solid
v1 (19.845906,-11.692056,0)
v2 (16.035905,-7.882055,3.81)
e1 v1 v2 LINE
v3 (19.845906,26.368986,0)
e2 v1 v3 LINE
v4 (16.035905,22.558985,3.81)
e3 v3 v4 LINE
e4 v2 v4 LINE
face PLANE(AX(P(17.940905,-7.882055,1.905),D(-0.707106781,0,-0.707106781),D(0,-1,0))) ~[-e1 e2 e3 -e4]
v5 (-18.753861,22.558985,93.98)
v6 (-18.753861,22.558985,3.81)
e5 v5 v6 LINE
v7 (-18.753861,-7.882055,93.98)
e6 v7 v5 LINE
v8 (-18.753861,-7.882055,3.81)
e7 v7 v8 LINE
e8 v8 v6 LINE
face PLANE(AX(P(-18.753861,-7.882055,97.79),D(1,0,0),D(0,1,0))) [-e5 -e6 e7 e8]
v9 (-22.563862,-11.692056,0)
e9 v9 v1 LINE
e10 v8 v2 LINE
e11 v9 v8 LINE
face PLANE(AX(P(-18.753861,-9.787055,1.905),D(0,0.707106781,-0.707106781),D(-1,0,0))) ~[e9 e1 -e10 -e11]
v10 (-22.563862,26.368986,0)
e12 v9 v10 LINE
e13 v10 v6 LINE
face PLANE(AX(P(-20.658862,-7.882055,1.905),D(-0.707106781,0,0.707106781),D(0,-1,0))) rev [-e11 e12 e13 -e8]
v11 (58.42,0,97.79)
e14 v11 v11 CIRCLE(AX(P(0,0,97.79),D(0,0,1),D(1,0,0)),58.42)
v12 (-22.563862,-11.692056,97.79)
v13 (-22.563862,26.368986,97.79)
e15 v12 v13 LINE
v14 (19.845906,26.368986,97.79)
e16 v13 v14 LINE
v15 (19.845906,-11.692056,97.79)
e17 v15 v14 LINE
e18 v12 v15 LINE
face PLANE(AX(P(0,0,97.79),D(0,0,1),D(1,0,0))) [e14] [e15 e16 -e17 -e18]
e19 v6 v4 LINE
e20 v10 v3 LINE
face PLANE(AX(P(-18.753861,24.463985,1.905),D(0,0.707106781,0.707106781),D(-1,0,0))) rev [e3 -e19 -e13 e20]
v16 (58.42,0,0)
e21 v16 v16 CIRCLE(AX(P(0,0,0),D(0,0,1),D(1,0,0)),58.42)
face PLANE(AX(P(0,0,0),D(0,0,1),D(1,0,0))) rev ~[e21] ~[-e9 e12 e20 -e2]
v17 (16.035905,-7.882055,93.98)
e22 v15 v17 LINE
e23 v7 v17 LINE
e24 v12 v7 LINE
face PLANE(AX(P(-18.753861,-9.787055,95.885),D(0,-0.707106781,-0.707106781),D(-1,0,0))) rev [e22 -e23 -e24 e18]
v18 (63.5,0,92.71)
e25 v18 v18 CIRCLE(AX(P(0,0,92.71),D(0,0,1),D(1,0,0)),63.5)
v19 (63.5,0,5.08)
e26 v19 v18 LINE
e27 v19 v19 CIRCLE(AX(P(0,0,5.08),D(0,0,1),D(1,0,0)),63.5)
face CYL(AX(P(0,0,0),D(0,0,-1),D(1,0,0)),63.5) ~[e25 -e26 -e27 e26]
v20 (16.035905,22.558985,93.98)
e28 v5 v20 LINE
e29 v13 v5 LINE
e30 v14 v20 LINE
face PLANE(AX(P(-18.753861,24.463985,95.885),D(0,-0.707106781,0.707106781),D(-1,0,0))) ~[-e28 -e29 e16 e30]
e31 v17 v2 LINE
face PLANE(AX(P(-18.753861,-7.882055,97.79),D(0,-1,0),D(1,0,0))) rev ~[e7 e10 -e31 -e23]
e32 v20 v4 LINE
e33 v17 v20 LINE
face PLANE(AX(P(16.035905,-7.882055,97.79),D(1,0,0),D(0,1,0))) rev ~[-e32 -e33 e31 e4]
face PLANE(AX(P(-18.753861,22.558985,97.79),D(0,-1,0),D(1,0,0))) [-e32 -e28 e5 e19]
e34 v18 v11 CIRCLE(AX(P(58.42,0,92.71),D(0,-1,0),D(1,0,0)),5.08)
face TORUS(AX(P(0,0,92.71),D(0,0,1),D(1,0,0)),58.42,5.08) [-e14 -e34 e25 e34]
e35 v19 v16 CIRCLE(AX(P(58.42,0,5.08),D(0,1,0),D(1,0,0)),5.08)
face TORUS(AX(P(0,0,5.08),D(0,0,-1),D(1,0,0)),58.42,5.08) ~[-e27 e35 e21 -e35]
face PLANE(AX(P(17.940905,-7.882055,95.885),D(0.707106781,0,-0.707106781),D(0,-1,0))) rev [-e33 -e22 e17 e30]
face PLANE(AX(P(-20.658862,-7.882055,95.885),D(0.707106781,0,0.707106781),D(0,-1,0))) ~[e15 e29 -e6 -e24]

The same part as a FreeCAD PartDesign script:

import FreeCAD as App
import Part
import Sketcher

V = App.Vector
Q = App.Units.Quantity


def edges_at(feature, points):
    """Names of the edges that pass closest to the given points."""
    edges = feature.Shape.Edges
    near = lambda p: min(range(len(edges)), key=lambda i: edges[i].distToShape(Part.Vertex(*p))[0])
    return sorted({f"Edge{near(p) + 1}" for p in points})


def add_polygon(sketch, points):
    """Adds a closed chain of lines whose ends are joined by coincident constraints."""
    first, n = sketch.GeometryCount, len(points)
    for a, b in zip(points, points[1:] + points[:1]):
        sketch.addGeometry(Part.LineSegment(App.Vector(*a, 0), App.Vector(*b, 0)), False)
    for i in range(n):
        sketch.addConstraint(Sketcher.Constraint("Coincident", first + i, 2, first + (i + 1) % n, 1))

doc = App.newDocument("Part")
params = doc.addObject("Spreadsheet::Sheet", "Params")
for row, (alias, value) in enumerate([
    ("sketch1_diameter", "5 in"),
    ("pad1_length", "3.85 in"),
    ("fillet_radius", "0.2 in"),
    ("chamfer_size", "0.15 in"),
], start=1):
    params.set(f"A{row}", alias)
    params.set(f"B{row}", "=" + value)
    params.setAlias(f"B{row}", alias)

body = doc.addObject("PartDesign::Body", "Body")

sketch1 = body.newObject("Sketcher::SketchObject", "Sketch")
sketch1.AttachmentSupport = (doc.getObject("XY_Plane"), [""])
sketch1.MapMode = "FlatFace"
sketch1.addGeometry(Part.Circle(V(0, 0, 0), V(0, 0, 1), 64), False)
sketch1.addConstraint([
    Sketcher.Constraint("Coincident", 0, 3, -1, 1),
    Sketcher.Constraint("Diameter", 0, Q("5 in")),
])
sketch1.setExpression("Constraints[1]", "Params.sketch1_diameter")
pad1 = body.newObject("PartDesign::Pad", "Pad")
pad1.Profile = sketch1
pad1.setExpression("Length", "Params.pad1_length")

sketch2 = body.newObject("Sketcher::SketchObject", "Sketch001")
sketch2.AttachmentSupport = (doc.getObject("XY_Plane"), [""])
sketch2.MapMode = "FlatFace"
sketch2.AttachmentOffset = App.Placement(V(0, 0, 3.85 * 25.4), App.Rotation())
add_polygon(sketch2, [(-19, 23), (-19, -8), (16, -8), (16, 23)])
sketch2.addConstraint([
    Sketcher.Constraint("Vertical", 0),
    Sketcher.Constraint("Horizontal", 1),
    Sketcher.Constraint("Vertical", 2),
    Sketcher.Constraint("Horizontal", 3),
    Sketcher.Constraint("DistanceY", 0, 2, 0, 1, Q("30.441041 mm")),
    Sketcher.Constraint("DistanceX", 1, 1, 1, 2, Q("34.789767 mm")),
    Sketcher.Constraint("DistanceX", 0, 2, -1, 1, Q("18.753861 mm")),
    Sketcher.Constraint("DistanceY", 0, 2, -1, 1, Q("7.882055 mm")),
])
pocket1 = body.newObject("PartDesign::Pocket", "Pocket")
pocket1.Profile = sketch2
pocket1.Type = "ThroughAll"
doc.recompute()

fillet = body.newObject("PartDesign::Fillet", "Fillet")
fillet.Base = (pocket1, edges_at(pocket1, [(-63.5, 0, 97.79), (-63.5, 0, 0)]))
fillet.setExpression("Radius", "Params.fillet_radius")
doc.recompute()

chamfer = body.newObject("PartDesign::Chamfer", "Chamfer")
chamfer.Base = (fillet, edges_at(fillet, [
    (-1.359, -7.882, 0),
    (16.036, 7.338, 0),
    (-1.359, 22.559, 0),
    (-18.754, 7.338, 0),
    (16.036, 7.338, 97.79),
    (-1.359, 22.559, 97.79),
    (-18.754, 7.338, 97.79),
    (-1.359, -7.882, 97.79),
]))
chamfer.setExpression("Size", "Params.chamfer_size")

doc.recompute()
